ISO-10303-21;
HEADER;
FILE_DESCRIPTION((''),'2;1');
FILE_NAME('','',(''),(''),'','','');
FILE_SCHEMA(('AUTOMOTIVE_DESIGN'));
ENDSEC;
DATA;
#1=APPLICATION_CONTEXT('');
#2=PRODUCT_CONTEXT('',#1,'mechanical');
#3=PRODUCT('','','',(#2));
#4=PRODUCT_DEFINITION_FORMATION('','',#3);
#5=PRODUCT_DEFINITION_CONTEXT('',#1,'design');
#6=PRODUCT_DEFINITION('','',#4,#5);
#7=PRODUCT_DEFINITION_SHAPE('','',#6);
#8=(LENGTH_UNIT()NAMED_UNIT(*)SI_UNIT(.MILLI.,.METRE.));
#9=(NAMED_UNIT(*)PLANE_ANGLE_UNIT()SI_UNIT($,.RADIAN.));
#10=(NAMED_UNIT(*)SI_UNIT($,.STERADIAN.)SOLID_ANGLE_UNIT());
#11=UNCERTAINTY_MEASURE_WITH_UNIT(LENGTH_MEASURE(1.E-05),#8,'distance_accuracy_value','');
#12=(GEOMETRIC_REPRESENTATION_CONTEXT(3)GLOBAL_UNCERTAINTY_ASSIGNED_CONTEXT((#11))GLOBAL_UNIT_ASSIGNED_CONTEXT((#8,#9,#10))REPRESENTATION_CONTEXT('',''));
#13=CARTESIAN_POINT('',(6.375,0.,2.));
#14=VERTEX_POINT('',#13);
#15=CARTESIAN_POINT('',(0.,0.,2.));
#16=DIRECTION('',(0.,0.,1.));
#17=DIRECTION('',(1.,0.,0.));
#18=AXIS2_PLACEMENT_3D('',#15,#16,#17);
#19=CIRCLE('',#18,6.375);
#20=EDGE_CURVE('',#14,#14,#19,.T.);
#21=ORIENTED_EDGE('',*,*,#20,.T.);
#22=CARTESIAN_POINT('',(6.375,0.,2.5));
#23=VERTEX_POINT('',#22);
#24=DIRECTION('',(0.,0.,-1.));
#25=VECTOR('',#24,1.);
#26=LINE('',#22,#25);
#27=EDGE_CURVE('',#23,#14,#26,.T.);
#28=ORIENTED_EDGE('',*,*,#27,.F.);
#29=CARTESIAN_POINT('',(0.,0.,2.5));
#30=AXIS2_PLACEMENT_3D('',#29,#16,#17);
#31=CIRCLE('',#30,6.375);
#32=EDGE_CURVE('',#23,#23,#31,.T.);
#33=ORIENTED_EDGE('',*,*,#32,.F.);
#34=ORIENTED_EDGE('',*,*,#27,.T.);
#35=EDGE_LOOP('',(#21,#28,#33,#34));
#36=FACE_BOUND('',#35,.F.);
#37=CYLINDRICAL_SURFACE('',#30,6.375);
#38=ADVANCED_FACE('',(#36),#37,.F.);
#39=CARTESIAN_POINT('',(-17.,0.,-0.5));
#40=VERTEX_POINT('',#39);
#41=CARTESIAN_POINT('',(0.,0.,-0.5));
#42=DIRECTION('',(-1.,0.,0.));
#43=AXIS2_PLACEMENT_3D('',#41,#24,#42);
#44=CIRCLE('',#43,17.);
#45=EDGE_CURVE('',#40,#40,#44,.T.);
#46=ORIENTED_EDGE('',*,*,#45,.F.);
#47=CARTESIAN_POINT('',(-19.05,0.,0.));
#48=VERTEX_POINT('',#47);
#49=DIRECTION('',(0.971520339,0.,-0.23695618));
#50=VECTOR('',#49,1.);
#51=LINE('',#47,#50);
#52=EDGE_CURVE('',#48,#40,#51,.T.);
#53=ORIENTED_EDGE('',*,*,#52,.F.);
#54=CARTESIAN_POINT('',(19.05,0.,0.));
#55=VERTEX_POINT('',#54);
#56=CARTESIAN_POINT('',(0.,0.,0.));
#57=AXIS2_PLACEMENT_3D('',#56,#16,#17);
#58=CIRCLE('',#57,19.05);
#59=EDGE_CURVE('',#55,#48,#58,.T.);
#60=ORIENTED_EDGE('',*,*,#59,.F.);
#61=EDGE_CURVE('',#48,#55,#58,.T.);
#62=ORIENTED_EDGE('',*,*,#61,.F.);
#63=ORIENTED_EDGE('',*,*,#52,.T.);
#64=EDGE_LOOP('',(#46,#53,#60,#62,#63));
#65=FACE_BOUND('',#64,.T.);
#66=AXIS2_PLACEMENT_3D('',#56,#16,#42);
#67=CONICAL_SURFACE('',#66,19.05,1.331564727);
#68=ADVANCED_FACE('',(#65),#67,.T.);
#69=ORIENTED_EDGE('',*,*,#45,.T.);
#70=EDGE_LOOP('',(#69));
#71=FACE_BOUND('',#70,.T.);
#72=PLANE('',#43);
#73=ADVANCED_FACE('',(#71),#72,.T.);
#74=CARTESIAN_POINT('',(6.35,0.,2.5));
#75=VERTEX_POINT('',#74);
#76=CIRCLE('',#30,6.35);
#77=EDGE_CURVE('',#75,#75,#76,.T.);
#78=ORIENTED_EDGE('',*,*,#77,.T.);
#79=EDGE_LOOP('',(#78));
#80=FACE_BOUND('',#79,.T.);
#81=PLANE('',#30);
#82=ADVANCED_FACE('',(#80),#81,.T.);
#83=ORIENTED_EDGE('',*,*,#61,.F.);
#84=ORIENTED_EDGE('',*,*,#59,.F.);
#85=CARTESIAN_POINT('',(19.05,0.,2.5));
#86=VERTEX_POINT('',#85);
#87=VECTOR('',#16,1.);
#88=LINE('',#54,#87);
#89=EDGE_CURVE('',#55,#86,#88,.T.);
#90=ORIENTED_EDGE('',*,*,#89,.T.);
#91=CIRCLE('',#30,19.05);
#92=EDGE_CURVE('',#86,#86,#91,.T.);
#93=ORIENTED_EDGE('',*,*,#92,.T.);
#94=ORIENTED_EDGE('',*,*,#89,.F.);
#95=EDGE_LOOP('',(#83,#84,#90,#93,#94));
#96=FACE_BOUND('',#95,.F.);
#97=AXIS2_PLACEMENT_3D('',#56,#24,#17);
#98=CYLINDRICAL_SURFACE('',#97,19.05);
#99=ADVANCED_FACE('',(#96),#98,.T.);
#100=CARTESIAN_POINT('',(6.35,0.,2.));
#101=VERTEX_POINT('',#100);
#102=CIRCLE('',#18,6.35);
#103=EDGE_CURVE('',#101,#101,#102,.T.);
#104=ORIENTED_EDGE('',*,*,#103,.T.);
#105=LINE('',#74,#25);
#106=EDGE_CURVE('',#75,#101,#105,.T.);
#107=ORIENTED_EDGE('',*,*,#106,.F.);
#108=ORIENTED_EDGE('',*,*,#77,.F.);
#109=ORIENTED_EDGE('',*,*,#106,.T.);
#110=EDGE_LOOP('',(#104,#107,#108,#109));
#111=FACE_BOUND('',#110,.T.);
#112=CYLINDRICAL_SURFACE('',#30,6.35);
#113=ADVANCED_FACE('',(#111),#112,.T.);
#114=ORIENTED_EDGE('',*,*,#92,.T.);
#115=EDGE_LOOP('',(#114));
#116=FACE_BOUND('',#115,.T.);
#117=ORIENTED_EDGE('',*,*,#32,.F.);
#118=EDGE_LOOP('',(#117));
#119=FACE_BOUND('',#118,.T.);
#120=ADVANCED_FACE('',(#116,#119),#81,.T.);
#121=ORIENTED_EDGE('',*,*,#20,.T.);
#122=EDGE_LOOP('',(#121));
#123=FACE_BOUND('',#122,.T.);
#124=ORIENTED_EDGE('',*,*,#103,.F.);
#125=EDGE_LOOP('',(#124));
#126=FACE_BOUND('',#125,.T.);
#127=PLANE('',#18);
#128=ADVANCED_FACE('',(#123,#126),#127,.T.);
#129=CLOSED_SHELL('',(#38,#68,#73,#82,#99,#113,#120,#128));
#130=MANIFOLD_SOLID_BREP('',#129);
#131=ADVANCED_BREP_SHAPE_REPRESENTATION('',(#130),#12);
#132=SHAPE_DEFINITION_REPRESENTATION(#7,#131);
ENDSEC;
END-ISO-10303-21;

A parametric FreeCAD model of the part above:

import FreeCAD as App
import Part
import Sketcher

V = App.Vector
Q = App.Units.Quantity

doc = App.newDocument("Part")
body = doc.addObject("PartDesign::Body", "Body")

# Sketch on XY plane
sketch1 = body.newObject("Sketcher::SketchObject", "Sketch")
sketch1.AttachmentSupport = (doc.getObject("XY_Plane"), [""])
sketch1.MapMode = "FlatFace"
sketch1.addGeometry(Part.Circle(V(0, 0, 0), V(0, 0, 1), 19), False)
sketch1.addConstraint([
    Sketcher.Constraint("Coincident", 0, 3, -1, 1),
    Sketcher.Constraint("Diameter", 0, Q("38.1 mm")),
])
pad1 = body.newObject("PartDesign::Pad", "Pad")
pad1.Profile = sketch1
pad1.Length = 2.5

# Sketch on XY plane
sketch2 = body.newObject("Sketcher::SketchObject", "Sketch001")
sketch2.AttachmentSupport = (doc.getObject("XY_Plane"), [""])
sketch2.MapMode = "FlatFace"
sketch2.AttachmentOffset = App.Placement(V(0, 0, 2.5), App.Rotation())
sketch2.addGeometry([
    Part.Circle(V(0, 0, 0), V(0, 0, 1), 6),
    Part.Circle(V(0, 0, 0), V(0, 0, 1), 6),
], False)
sketch2.addConstraint([
    Sketcher.Constraint("Coincident", 0, 3, -1, 1),
    Sketcher.Constraint("Coincident", 1, 3, -1, 1),
    Sketcher.Constraint("Diameter", 1, Q("12.7 mm")),
    Sketcher.Constraint("Diameter", 0, Q("12.75 mm")),
])
pocket1 = body.newObject("PartDesign::Pocket", "Pocket")
pocket1.Profile = sketch2
pocket1.Length = 0.5

# Sketch on XZ plane
sketch3 = body.newObject("Sketcher::SketchObject", "Sketch002")
sketch3.AttachmentSupport = (doc.getObject("XZ_Plane"), [""])
sketch3.MapMode = "FlatFace"
sketch3.addGeometry([
    Part.LineSegment(V(0, -0.5, 0), V(0, 0, 0)),
    Part.LineSegment(V(0, 0, 0), V(-19.1, 0, 0)),
    Part.LineSegment(V(-19.1, 0, 0), V(-17, -0.5, 0)),
    Part.LineSegment(V(-17, -0.5, 0), V(0, -0.5, 0)),
], False)
sketch3.addConstraint([
    Sketcher.Constraint("Coincident", 0, 2, 1, 1),
    Sketcher.Constraint("Coincident", 1, 2, 2, 1),
    Sketcher.Constraint("Coincident", 2, 2, 3, 1),
    Sketcher.Constraint("Coincident", 3, 2, 0, 1),
    Sketcher.Constraint("Vertical", 0),
    Sketcher.Constraint("Horizontal", 1),
    Sketcher.Constraint("Horizontal", 3),
    Sketcher.Constraint("Coincident", 0, 2, -1, 1),
    Sketcher.Constraint("DistanceX", 3, 1, 3, 2, Q("17 mm")),
    Sketcher.Constraint("DistanceY", 0, 1, 0, 2, Q("0.5 mm")),
    Sketcher.Constraint("DistanceX", 1, 2, 1, 1, Q("19.05 mm")),
])
revolution = body.newObject("PartDesign::Revolution", "Revolution")
revolution.Profile = sketch3
revolution.ReferenceAxis = (sketch3, ["V_Axis"])
revolution.Angle = 360

doc.recompute()
